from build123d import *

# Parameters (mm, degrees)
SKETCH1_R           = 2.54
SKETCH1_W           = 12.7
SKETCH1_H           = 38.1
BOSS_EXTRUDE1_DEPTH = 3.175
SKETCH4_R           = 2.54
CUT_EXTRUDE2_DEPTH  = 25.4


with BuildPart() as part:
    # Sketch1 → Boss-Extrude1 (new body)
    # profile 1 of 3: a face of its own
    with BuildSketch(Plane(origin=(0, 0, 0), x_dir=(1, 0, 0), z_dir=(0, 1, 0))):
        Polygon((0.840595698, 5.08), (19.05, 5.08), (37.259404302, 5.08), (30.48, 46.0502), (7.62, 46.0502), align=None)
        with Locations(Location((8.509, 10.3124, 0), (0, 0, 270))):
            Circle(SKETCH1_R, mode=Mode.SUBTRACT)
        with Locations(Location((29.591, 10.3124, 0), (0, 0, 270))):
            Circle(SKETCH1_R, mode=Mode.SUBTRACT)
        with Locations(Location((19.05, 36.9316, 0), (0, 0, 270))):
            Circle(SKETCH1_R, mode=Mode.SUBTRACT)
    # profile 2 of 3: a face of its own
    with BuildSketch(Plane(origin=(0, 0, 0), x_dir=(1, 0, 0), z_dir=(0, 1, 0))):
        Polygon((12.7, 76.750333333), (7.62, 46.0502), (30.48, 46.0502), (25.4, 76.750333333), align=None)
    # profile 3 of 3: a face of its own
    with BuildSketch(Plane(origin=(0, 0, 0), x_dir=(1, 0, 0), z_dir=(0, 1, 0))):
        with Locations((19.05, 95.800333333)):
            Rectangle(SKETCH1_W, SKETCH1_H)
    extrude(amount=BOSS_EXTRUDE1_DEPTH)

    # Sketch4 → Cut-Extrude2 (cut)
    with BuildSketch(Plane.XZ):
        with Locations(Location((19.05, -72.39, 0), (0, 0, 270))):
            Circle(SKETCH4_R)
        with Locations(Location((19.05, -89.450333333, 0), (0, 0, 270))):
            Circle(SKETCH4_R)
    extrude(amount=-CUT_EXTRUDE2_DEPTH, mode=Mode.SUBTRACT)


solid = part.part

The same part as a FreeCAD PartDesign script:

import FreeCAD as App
import Part
import Sketcher

V = App.Vector
Q = App.Units.Quantity

doc = App.newDocument("Part")
body = doc.addObject("PartDesign::Body", "Body")

# Sketch on XZ plane
sketch1 = body.newObject("Sketcher::SketchObject", "Sketch")
sketch1.AttachmentSupport = (doc.getObject("XZ_Plane"), [""])
sketch1.MapMode = "FlatFace"
sketch1.addGeometry([
    Part.LineSegment(V(0.8, -5.1, 0), V(37.3, -5.1, 0)),  # 0
    Part.LineSegment(V(37.3, -5.1, 0), V(30.5, -46.1, 0)),  # 1
    Part.LineSegment(V(30.5, -46.1, 0), V(25.4, -76.8, 0)),  # 2
    Part.LineSegment(V(25.4, -76.8, 0), V(25.4, -114.9, 0)),  # 3
    Part.LineSegment(V(25.4, -114.9, 0), V(12.7, -114.9, 0)),  # 4
    Part.LineSegment(V(12.7, -114.9, 0), V(12.7, -76.8, 0)),  # 5
    Part.LineSegment(V(12.7, -76.8, 0), V(7.6, -46.1, 0)),  # 6
    Part.LineSegment(V(7.6, -46.1, 0), V(0.8, -5.1, 0)),  # 7
    Part.Circle(V(8.5, -10.3, 0), V(0, 0, 1), 2.5),  # 8
    Part.Circle(V(29.6, -10.3, 0), V(0, 0, 1), 2.5),  # 9
    Part.Circle(V(19.1, -36.9, 0), V(0, 0, 1), 2.5),  # 10
], False)
sketch1.addConstraint([
    Sketcher.Constraint("Coincident", 0, 2, 1, 1),
    Sketcher.Constraint("Coincident", 1, 2, 2, 1),
    Sketcher.Constraint("Coincident", 2, 2, 3, 1),
    Sketcher.Constraint("Coincident", 3, 2, 4, 1),
    Sketcher.Constraint("Coincident", 4, 2, 5, 1),
    Sketcher.Constraint("Coincident", 5, 2, 6, 1),
    Sketcher.Constraint("Coincident", 6, 2, 7, 1),
    Sketcher.Constraint("Coincident", 7, 2, 0, 1),
    Sketcher.Constraint("Horizontal", 0),
    Sketcher.Constraint("Vertical", 3),
    Sketcher.Constraint("Horizontal", 4),
    Sketcher.Constraint("Vertical", 5),
    Sketcher.Constraint("Equal", 8, 9),
    Sketcher.Constraint("Equal", 9, 10),
    Sketcher.Constraint("Parallel", 1, 2),
    Sketcher.Constraint("Parallel", 6, 7),
    Sketcher.Constraint("Horizontal", 8, 3, 9, 3),
    Sketcher.Constraint("Horizontal", 2, 2, 5, 2),
    Sketcher.Constraint("Horizontal", 1, 2, 6, 2),
    Sketcher.Constraint("Equal", 2, 6),
    Sketcher.Constraint("Diameter", 8, Q("0.2 in")),
    Sketcher.Constraint("DistanceX", 4, 2, 4, 1, Q("0.5 in")),
    Sketcher.Constraint("DistanceY", 3, 2, 3, 1, Q("1.5 in")),
    Sketcher.Constraint("DistanceX", -1, 1, 2, 2, Q("1 in")),
    Sketcher.Constraint("DistanceY", 0, 2, -1, 1, Q("0.2 in")),
    Sketcher.Constraint("DistanceX", -1, 1, 1, 2, Q("1.2 in")),
    Sketcher.Constraint("DistanceX", -1, 1, 10, 3, Q("0.75 in")),
    Sketcher.Constraint("DistanceX", 8, 3, 9, 3, Q("0.83 in")),
    Sketcher.Constraint("DistanceX", -1, 1, 8, 3, Q("0.335 in")),
    Sketcher.Constraint("DistanceY", 8, 3, -1, 1, Q("0.406 in")),
    Sketcher.Constraint("DistanceY", 10, 3, -1, 1, Q("1.454 in")),
    Sketcher.Constraint("DistanceY", 1, 2, -1, 1, Q("1.813 in")),
    Sketcher.Constraint("DistanceX", 0, 1, 0, 2, Q("36.418809 mm")),
])
pad1 = body.newObject("PartDesign::Pad", "Pad")
pad1.Profile = sketch1
pad1.Length = Q("0.125 in")
pad1.Reversed = True

# Sketch on XZ plane
sketch2 = body.newObject("Sketcher::SketchObject", "Sketch001")
sketch2.AttachmentSupport = (doc.getObject("XZ_Plane"), [""])
sketch2.MapMode = "FlatFace"
sketch2.addGeometry([
    Part.Circle(V(19.1, -72.4, 0), V(0, 0, 1), 2.5),
    Part.Circle(V(19.1, -89.5, 0), V(0, 0, 1), 2.5),
], False)
sketch2.addConstraint([
    Sketcher.Constraint("Equal", 0, 1),
    Sketcher.Constraint("Vertical", 0, 3, 1, 3),
    Sketcher.Constraint("Diameter", 0, Q("0.2 in")),
    Sketcher.Constraint("DistanceX", -1, 1, 0, 3, Q("0.75 in")),
    Sketcher.Constraint("DistanceY", 0, 3, -1, 1, Q("2.85 in")),
    Sketcher.Constraint("DistanceY", 1, 3, -1, 1, Q("89.450333 mm")),
])
pocket1 = body.newObject("PartDesign::Pocket", "Pocket")
pocket1.Profile = sketch2
pocket1.Length = Q("1 in")

doc.recompute()
